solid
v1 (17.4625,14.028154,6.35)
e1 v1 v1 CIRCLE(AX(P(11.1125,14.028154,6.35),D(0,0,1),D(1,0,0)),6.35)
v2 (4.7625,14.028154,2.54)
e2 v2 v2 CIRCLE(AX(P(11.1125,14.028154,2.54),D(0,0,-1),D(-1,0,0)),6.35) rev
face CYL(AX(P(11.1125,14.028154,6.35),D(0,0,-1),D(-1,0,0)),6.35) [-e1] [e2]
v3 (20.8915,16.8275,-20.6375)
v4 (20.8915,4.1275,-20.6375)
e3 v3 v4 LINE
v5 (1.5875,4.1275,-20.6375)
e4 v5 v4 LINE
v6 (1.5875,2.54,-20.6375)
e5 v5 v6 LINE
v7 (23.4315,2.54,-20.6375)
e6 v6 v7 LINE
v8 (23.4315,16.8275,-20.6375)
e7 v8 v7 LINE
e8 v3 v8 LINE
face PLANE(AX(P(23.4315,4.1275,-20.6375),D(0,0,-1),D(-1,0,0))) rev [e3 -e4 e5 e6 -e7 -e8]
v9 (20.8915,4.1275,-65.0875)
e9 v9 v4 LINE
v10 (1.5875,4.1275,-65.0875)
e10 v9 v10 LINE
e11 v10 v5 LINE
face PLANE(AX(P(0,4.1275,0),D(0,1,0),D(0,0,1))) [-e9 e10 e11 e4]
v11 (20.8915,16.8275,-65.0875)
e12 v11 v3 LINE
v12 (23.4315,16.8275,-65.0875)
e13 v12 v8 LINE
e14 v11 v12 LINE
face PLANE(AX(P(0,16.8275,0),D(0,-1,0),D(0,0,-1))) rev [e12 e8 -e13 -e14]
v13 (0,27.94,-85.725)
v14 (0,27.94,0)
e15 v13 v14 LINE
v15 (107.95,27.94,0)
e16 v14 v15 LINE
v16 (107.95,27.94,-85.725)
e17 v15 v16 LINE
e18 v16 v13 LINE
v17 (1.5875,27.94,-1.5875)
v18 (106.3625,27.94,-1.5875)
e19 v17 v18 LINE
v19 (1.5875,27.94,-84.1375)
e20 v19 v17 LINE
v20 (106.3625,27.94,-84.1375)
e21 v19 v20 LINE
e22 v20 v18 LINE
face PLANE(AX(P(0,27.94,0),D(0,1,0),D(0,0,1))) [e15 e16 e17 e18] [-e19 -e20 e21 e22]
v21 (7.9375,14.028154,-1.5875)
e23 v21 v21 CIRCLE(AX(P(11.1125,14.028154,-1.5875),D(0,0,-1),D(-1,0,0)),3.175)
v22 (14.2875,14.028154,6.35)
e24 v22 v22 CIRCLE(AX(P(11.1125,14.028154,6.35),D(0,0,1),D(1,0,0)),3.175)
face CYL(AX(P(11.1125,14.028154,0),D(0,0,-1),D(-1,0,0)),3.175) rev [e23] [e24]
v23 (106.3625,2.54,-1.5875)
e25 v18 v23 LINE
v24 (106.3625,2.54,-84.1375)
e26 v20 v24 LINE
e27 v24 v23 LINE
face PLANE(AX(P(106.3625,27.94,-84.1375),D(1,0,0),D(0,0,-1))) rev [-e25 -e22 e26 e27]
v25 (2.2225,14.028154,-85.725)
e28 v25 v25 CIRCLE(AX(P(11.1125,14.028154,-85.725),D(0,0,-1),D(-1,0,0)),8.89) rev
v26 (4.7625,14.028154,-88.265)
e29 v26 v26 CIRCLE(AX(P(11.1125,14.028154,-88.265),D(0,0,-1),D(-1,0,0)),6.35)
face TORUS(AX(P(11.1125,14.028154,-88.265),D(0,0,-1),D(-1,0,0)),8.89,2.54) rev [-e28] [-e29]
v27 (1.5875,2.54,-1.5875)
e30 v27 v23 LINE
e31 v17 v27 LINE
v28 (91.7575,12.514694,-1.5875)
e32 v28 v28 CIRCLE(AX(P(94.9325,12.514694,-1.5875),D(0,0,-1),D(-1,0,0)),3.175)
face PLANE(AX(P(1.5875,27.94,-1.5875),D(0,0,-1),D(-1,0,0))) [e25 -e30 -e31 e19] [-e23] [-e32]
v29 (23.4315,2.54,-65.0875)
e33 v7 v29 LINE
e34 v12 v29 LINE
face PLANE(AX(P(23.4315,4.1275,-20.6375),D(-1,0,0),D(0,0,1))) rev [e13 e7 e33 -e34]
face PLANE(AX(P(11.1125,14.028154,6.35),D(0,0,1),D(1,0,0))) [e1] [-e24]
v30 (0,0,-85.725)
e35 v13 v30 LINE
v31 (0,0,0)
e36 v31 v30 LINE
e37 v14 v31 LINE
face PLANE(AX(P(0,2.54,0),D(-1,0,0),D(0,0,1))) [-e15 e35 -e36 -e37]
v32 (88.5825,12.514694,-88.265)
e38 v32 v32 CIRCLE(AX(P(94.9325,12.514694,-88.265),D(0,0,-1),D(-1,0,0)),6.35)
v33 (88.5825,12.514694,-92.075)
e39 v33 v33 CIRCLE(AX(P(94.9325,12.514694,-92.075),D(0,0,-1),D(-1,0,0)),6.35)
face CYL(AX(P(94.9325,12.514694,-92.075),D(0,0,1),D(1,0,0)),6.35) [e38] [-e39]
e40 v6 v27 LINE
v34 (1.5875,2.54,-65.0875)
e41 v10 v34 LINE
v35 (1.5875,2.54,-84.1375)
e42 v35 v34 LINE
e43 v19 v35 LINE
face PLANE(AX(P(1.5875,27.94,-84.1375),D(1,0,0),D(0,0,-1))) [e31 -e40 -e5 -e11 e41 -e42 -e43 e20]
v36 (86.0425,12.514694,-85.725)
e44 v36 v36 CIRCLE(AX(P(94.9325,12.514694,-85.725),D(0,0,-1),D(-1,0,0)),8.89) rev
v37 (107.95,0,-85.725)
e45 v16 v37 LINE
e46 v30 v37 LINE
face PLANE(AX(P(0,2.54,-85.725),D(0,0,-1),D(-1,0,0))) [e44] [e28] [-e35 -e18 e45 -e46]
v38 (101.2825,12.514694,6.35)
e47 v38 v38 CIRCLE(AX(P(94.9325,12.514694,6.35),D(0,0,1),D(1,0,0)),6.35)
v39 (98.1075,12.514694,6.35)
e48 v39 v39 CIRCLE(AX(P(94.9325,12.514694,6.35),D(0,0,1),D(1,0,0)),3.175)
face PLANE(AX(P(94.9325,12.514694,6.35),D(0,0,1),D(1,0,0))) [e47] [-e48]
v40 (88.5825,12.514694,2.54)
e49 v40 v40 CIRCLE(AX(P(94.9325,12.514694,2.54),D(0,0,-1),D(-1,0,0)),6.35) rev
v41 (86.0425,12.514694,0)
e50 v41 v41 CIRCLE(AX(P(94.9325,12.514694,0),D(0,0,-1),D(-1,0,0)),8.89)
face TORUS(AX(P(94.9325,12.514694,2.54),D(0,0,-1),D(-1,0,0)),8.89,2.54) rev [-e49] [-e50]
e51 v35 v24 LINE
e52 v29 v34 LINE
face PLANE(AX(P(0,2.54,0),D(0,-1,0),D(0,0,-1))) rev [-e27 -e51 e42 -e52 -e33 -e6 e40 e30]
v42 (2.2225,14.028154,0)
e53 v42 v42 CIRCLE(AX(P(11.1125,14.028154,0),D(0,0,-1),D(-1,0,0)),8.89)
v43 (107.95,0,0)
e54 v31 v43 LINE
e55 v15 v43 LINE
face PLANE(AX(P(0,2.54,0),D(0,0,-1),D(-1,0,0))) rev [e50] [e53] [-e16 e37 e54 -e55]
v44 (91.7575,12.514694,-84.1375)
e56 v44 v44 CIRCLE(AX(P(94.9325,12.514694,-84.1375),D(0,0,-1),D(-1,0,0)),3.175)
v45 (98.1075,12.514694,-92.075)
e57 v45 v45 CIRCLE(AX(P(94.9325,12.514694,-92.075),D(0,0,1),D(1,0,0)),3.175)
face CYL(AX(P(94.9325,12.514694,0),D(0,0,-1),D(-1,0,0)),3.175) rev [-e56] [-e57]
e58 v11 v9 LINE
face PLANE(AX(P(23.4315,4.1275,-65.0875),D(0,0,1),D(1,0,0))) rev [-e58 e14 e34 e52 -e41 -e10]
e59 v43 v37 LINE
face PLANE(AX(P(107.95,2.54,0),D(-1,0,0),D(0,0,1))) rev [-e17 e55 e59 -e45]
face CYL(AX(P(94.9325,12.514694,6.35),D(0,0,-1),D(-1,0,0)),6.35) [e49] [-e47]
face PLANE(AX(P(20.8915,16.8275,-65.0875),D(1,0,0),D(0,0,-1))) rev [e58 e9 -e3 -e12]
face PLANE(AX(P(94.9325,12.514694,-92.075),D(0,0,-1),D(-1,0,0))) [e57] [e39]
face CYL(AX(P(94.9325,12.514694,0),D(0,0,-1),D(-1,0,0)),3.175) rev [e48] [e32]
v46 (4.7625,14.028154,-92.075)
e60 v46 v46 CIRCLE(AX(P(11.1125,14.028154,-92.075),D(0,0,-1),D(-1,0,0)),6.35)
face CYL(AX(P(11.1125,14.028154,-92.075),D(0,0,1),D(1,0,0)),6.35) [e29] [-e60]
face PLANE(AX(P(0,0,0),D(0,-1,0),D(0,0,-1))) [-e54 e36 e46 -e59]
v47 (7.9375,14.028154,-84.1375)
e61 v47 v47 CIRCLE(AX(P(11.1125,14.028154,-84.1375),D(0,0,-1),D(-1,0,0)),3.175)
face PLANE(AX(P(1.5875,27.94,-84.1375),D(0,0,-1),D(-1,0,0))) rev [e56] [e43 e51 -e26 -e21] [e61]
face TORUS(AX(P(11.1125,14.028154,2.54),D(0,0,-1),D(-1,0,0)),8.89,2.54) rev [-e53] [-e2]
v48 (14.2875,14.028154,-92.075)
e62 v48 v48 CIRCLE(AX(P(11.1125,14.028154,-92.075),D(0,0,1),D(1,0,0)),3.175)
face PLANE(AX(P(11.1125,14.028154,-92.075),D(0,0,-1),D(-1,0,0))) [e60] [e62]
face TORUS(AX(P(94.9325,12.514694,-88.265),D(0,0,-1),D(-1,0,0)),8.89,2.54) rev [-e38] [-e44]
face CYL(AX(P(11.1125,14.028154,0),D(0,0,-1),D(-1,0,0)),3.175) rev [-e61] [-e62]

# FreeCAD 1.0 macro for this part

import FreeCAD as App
import Part
import Sketcher
Q = App.Units.Quantity


def edges_at(feature, points):
    """Names of the edges that pass closest to the given points."""
    edges = feature.Shape.Edges
    near = lambda p: min(range(len(edges)), key=lambda i: edges[i].distToShape(Part.Vertex(*p))[0])
    return sorted({f"Edge{near(p) + 1}" for p in points})

doc = App.newDocument("Part")
params = doc.addObject("Spreadsheet::Sheet", "Params")
for row, (alias, value) in enumerate([
    ("sketch1_width", "4.25 in"),
    ("sketch1_height", "3.375 in"),
    ("pad1_length", "0.1 in"),
    ("sketch2_width", "4.25 in"),
    ("sketch2_height", "3.25 in"),
    ("sketch2_width2", "4.125 in"),
    ("sketch2_height2", "3.375 in"),
    ("pad2_length", "1 in"),
    ("sketch3_diameter", "0.25 in"),
    ("sketch4_diameter", "0.25 in"),
    ("sketch5_width", "0.86 in"),
    ("sketch5_height", "1.75 in"),
    ("pad3_length", "0.0625 in"),
    ("sketch6_width", "0.1 in"),
    ("sketch6_height", "1.75 in"),
    ("pad4_length", "0.5 in"),
    ("sketch7_diameter", "0.5 in"),
    ("pad5_length", "0.25 in"),
    ("sketch8_diameter", "0.5 in"),
    ("pad6_length", "0.25 in"),
    ("fillet_radius", "0.1 in"),
    ("fillet2_radius", "0.1 in"),
    ("sketch9_diameter", "0.5 in"),
    ("pad7_length", "0.25 in"),
    ("sketch10_diameter", "0.5 in"),
    ("pad8_length", "0.25 in"),
    ("fillet3_radius", "0.1 in"),
    ("sketch11_diameter", "0.25 in"),
    ("sketch12_diameter", "0.25 in"),
], start=1):
    params.set(f"A{row}", alias)
    params.set(f"B{row}", "=" + value)
    params.setAlias(f"B{row}", alias)

body = doc.addObject("PartDesign::Body", "Body")

sketch1 = body.newObject("Sketcher::SketchObject", "Sketch")
sketch1.AttachmentSupport = (doc.getObject("XZ_Plane"), [""])
sketch1.MapMode = "FlatFace"
sketch1.addGeometry(Part.LineSegment(App.Vector(0, -86, 0), App.Vector(0, 0, 0)), False)
sketch1.addGeometry(Part.LineSegment(App.Vector(0, 0, 0), App.Vector(108, 0, 0)), False)
sketch1.addGeometry(Part.LineSegment(App.Vector(108, 0, 0), App.Vector(108, -86, 0)), False)
sketch1.addGeometry(Part.LineSegment(App.Vector(108, -86, 0), App.Vector(0, -86, 0)), False)
sketch1.addConstraint(Sketcher.Constraint("Coincident", 0, 2, 1, 1))
sketch1.addConstraint(Sketcher.Constraint("Coincident", 1, 2, 2, 1))
sketch1.addConstraint(Sketcher.Constraint("Coincident", 2, 2, 3, 1))
sketch1.addConstraint(Sketcher.Constraint("Coincident", 3, 2, 0, 1))
sketch1.addConstraint(Sketcher.Constraint("Vertical", 0))
sketch1.addConstraint(Sketcher.Constraint("Horizontal", 1))
sketch1.addConstraint(Sketcher.Constraint("Vertical", 2))
sketch1.addConstraint(Sketcher.Constraint("Horizontal", 3))
sketch1.addConstraint(Sketcher.Constraint("Coincident", 0, 2, -1, 1))
sketch1.addConstraint(Sketcher.Constraint("DistanceX", 1, 1, 1, 2, Q("4.25 in")))
sketch1.addConstraint(Sketcher.Constraint("DistanceY", 0, 1, 0, 2, Q("3.375 in")))
sketch1.setExpression("Constraints[9]", "Params.sketch1_width")
sketch1.setExpression("Constraints[10]", "Params.sketch1_height")
pad1 = body.newObject("PartDesign::Pad", "Pad")
pad1.Profile = sketch1
pad1.setExpression("Length", "Params.pad1_length")
pad1.Reversed = True

sketch2 = body.newObject("Sketcher::SketchObject", "Sketch001")
sketch2.AttachmentSupport = (doc.getObject("XZ_Plane"), [""])
sketch2.MapMode = "FlatFace"
sketch2.AttachmentOffset = App.Placement(App.Vector(0, 0, -0.1 * 25.4), App.Rotation())
sketch2.addGeometry(Part.LineSegment(App.Vector(0, -86, 0), App.Vector(0, 0, 0)), False)
sketch2.addGeometry(Part.LineSegment(App.Vector(0, 0, 0), App.Vector(108, 0, 0)), False)
sketch2.addGeometry(Part.LineSegment(App.Vector(108, 0, 0), App.Vector(108, -86, 0)), False)
sketch2.addGeometry(Part.LineSegment(App.Vector(108, -86, 0), App.Vector(0, -86, 0)), False)
sketch2.addGeometry(Part.LineSegment(App.Vector(106, -2, 0), App.Vector(2, -2, 0)), False)
sketch2.addGeometry(Part.LineSegment(App.Vector(2, -2, 0), App.Vector(2, -84, 0)), False)
sketch2.addGeometry(Part.LineSegment(App.Vector(2, -84, 0), App.Vector(106, -84, 0)), False)
sketch2.addGeometry(Part.LineSegment(App.Vector(106, -84, 0), App.Vector(106, -2, 0)), False)
sketch2.addConstraint(Sketcher.Constraint("Coincident", 0, 2, 1, 1))
sketch2.addConstraint(Sketcher.Constraint("Coincident", 1, 2, 2, 1))
sketch2.addConstraint(Sketcher.Constraint("Coincident", 2, 2, 3, 1))
sketch2.addConstraint(Sketcher.Constraint("Coincident", 3, 2, 0, 1))
sketch2.addConstraint(Sketcher.Constraint("Coincident", 4, 2, 5, 1))
sketch2.addConstraint(Sketcher.Constraint("Coincident", 5, 2, 6, 1))
sketch2.addConstraint(Sketcher.Constraint("Coincident", 6, 2, 7, 1))
sketch2.addConstraint(Sketcher.Constraint("Coincident", 7, 2, 4, 1))
sketch2.addConstraint(Sketcher.Constraint("Vertical", 0))
sketch2.addConstraint(Sketcher.Constraint("Horizontal", 1))
sketch2.addConstraint(Sketcher.Constraint("Vertical", 2))
sketch2.addConstraint(Sketcher.Constraint("Horizontal", 3))
sketch2.addConstraint(Sketcher.Constraint("Horizontal", 4))
sketch2.addConstraint(Sketcher.Constraint("Vertical", 5))
sketch2.addConstraint(Sketcher.Constraint("Horizontal", 6))
sketch2.addConstraint(Sketcher.Constraint("Vertical", 7))
sketch2.addConstraint(Sketcher.Constraint("Coincident", 0, 2, -1, 1))
sketch2.addConstraint(Sketcher.Constraint("DistanceX", 1, 1, 1, 2, Q("4.25 in")))
sketch2.addConstraint(Sketcher.Constraint("DistanceY", 5, 2, 5, 1, Q("3.25 in")))
sketch2.addConstraint(Sketcher.Constraint("DistanceX", 4, 2, 4, 1, Q("4.125 in")))
sketch2.addConstraint(Sketcher.Constraint("DistanceY", 0, 1, 0, 2, Q("3.375 in")))
sketch2.addConstraint(Sketcher.Constraint("DistanceX", -1, 1, 4, 2, Q("0.0625 in")))
sketch2.addConstraint(Sketcher.Constraint("DistanceY", 4, 2, -1, 1, Q("0.0625 in")))
sketch2.setExpression("Constraints[17]", "Params.sketch2_width")
sketch2.setExpression("Constraints[18]", "Params.sketch2_height")
sketch2.setExpression("Constraints[19]", "Params.sketch2_width2")
sketch2.setExpression("Constraints[20]", "Params.sketch2_height2")
pad2 = body.newObject("PartDesign::Pad", "Pad001")
pad2.Profile = sketch2
pad2.setExpression("Length", "Params.pad2_length")
pad2.Reversed = True

sketch3 = body.newObject("Sketcher::SketchObject", "Sketch002")
sketch3.AttachmentSupport = (doc.getObject("XY_Plane"), [""])
sketch3.MapMode = "FlatFace"
sketch3.AttachmentOffset = App.Placement(App.Vector(0, 0, -3.375 * 25.4), App.Rotation())
sketch3.addGeometry(Part.Circle(App.Vector(11.1, 14, 0), App.Vector(0, 0, 1), 3.2), False)
sketch3.addConstraint(Sketcher.Constraint("Diameter", 0, Q("0.25 in")))
sketch3.addConstraint(Sketcher.Constraint("DistanceX", -1, 1, 0, 3, Q("0.4375 in")))
sketch3.addConstraint(Sketcher.Constraint("DistanceY", -1, 1, 0, 3, 14.028154))
sketch3.setExpression("Constraints[0]", "Params.sketch3_diameter")
pocket1 = body.newObject("PartDesign::Pocket", "Pocket")
pocket1.Profile = sketch3
pocket1.Type = "ThroughAll"
pocket1.Midplane = True

sketch4 = body.newObject("Sketcher::SketchObject", "Sketch003")
sketch4.AttachmentSupport = (doc.getObject("XY_Plane"), [""])
sketch4.MapMode = "FlatFace"
sketch4.AttachmentOffset = App.Placement(App.Vector(0, 0, -3.375 * 25.4), App.Rotation())
sketch4.addGeometry(Part.Circle(App.Vector(94.9, 12.5, 0), App.Vector(0, 0, 1), 3.2), False)
sketch4.addConstraint(Sketcher.Constraint("Diameter", 0, Q("0.25 in")))
sketch4.addConstraint(Sketcher.Constraint("DistanceX", -1, 1, 0, 3, Q("3.7375 in")))
sketch4.addConstraint(Sketcher.Constraint("DistanceY", -1, 1, 0, 3, 12.514694))
sketch4.setExpression("Constraints[0]", "Params.sketch4_diameter")
pocket2 = body.newObject("PartDesign::Pocket", "Pocket001")
pocket2.Profile = sketch4
pocket2.Type = "ThroughAll"
pocket2.Midplane = True

sketch5 = body.newObject("Sketcher::SketchObject", "Sketch004")
sketch5.AttachmentSupport = (doc.getObject("XZ_Plane"), [""])
sketch5.MapMode = "FlatFace"
sketch5.AttachmentOffset = App.Placement(App.Vector(0, 0, -0.1 * 25.4), App.Rotation())
sketch5.addGeometry(Part.LineSegment(App.Vector(2, -65, 0), App.Vector(2, -21, 0)), False)
sketch5.addGeometry(Part.LineSegment(App.Vector(2, -21, 0), App.Vector(23, -21, 0)), False)
sketch5.addGeometry(Part.LineSegment(App.Vector(23, -21, 0), App.Vector(23, -65, 0)), False)
sketch5.addGeometry(Part.LineSegment(App.Vector(23, -65, 0), App.Vector(2, -65, 0)), False)
sketch5.addConstraint(Sketcher.Constraint("Coincident", 0, 2, 1, 1))
sketch5.addConstraint(Sketcher.Constraint("Coincident", 1, 2, 2, 1))
sketch5.addConstraint(Sketcher.Constraint("Coincident", 2, 2, 3, 1))
sketch5.addConstraint(Sketcher.Constraint("Coincident", 3, 2, 0, 1))
sketch5.addConstraint(Sketcher.Constraint("Vertical", 0))
sketch5.addConstraint(Sketcher.Constraint("Horizontal", 1))
sketch5.addConstraint(Sketcher.Constraint("Vertical", 2))
sketch5.addConstraint(Sketcher.Constraint("Horizontal", 3))
sketch5.addConstraint(Sketcher.Constraint("DistanceX", 1, 1, 1, 2, Q("0.86 in")))
sketch5.addConstraint(Sketcher.Constraint("DistanceY", 0, 1, 0, 2, Q("1.75 in")))
sketch5.addConstraint(Sketcher.Constraint("DistanceX", -1, 1, 0, 2, Q("0.0625 in")))
sketch5.addConstraint(Sketcher.Constraint("DistanceY", 0, 2, -1, 1, Q("0.8125 in")))
sketch5.setExpression("Constraints[8]", "Params.sketch5_width")
sketch5.setExpression("Constraints[9]", "Params.sketch5_height")
pad3 = body.newObject("PartDesign::Pad", "Pad002")
pad3.Profile = sketch5
pad3.setExpression("Length", "Params.pad3_length")
pad3.Reversed = True

sketch6 = body.newObject("Sketcher::SketchObject", "Sketch005")
sketch6.AttachmentSupport = (doc.getObject("XZ_Plane"), [""])
sketch6.MapMode = "FlatFace"
sketch6.AttachmentOffset = App.Placement(App.Vector(0, 0, -0.1625 * 25.4), App.Rotation())
sketch6.addGeometry(Part.LineSegment(App.Vector(20.9, -65.1, 0), App.Vector(20.9, -20.6, 0)), False)
sketch6.addGeometry(Part.LineSegment(App.Vector(20.9, -20.6, 0), App.Vector(23.4, -20.6, 0)), False)
sketch6.addGeometry(Part.LineSegment(App.Vector(23.4, -20.6, 0), App.Vector(23.4, -65.1, 0)), False)
sketch6.addGeometry(Part.LineSegment(App.Vector(23.4, -65.1, 0), App.Vector(20.9, -65.1, 0)), False)
sketch6.addConstraint(Sketcher.Constraint("Coincident", 0, 2, 1, 1))
sketch6.addConstraint(Sketcher.Constraint("Coincident", 1, 2, 2, 1))
sketch6.addConstraint(Sketcher.Constraint("Coincident", 2, 2, 3, 1))
sketch6.addConstraint(Sketcher.Constraint("Coincident", 3, 2, 0, 1))
sketch6.addConstraint(Sketcher.Constraint("Vertical", 0))
sketch6.addConstraint(Sketcher.Constraint("Horizontal", 1))
sketch6.addConstraint(Sketcher.Constraint("Vertical", 2))
sketch6.addConstraint(Sketcher.Constraint("Horizontal", 3))
sketch6.addConstraint(Sketcher.Constraint("DistanceX", 1, 1, 1, 2, Q("0.1 in")))
sketch6.addConstraint(Sketcher.Constraint("DistanceY", 0, 1, 0, 2, Q("1.75 in")))
sketch6.addConstraint(Sketcher.Constraint("DistanceY", 0, 2, -1, 1, Q("0.8125 in")))
sketch6.addConstraint(Sketcher.Constraint("DistanceX", -1, 1, 0, 2, Q("0.8225 in")))
sketch6.setExpression("Constraints[8]", "Params.sketch6_width")
sketch6.setExpression("Constraints[9]", "Params.sketch6_height")
pad4 = body.newObject("PartDesign::Pad", "Pad003")
pad4.Profile = sketch6
pad4.setExpression("Length", "Params.pad4_length")
pad4.Reversed = True

sketch7 = body.newObject("Sketcher::SketchObject", "Sketch006")
sketch7.AttachmentSupport = (doc.getObject("XY_Plane"), [""])
sketch7.MapMode = "FlatFace"
sketch7.addGeometry(Part.Circle(App.Vector(11, 14, 0), App.Vector(0, 0, 1), 6), False)
sketch7.addConstraint(Sketcher.Constraint("Diameter", 0, Q("0.5 in")))
sketch7.addConstraint(Sketcher.Constraint("DistanceX", -1, 1, 0, 3, Q("0.4375 in")))
sketch7.addConstraint(Sketcher.Constraint("DistanceY", -1, 1, 0, 3, 14.028154))
sketch7.setExpression("Constraints[0]", "Params.sketch7_diameter")
pad5 = body.newObject("PartDesign::Pad", "Pad004")
pad5.Profile = sketch7
pad5.setExpression("Length", "Params.pad5_length")

sketch8 = body.newObject("Sketcher::SketchObject", "Sketch007")
sketch8.AttachmentSupport = (doc.getObject("XY_Plane"), [""])
sketch8.MapMode = "FlatFace"
sketch8.addGeometry(Part.Circle(App.Vector(95, 13, 0), App.Vector(0, 0, 1), 6), False)
sketch8.addConstraint(Sketcher.Constraint("Diameter", 0, Q("0.5 in")))
sketch8.addConstraint(Sketcher.Constraint("DistanceX", -1, 1, 0, 3, Q("3.7375 in")))
sketch8.addConstraint(Sketcher.Constraint("DistanceY", -1, 1, 0, 3, 12.514694))
sketch8.setExpression("Constraints[0]", "Params.sketch8_diameter")
pad6 = body.newObject("PartDesign::Pad", "Pad005")
pad6.Profile = sketch8
pad6.setExpression("Length", "Params.pad6_length")
doc.recompute()

fillet = body.newObject("PartDesign::Fillet", "Fillet")
fillet.Base = (pad6, edges_at(pad6, [(17.462, 14.028, 0)]))
fillet.setExpression("Radius", "Params.fillet_radius")
doc.recompute()

fillet2 = body.newObject("PartDesign::Fillet", "Fillet001")
fillet2.Base = (fillet, edges_at(fillet, [(101.282, 12.515, 0)]))
fillet2.setExpression("Radius", "Params.fillet2_radius")

sketch9 = body.newObject("Sketcher::SketchObject", "Sketch008")
sketch9.AttachmentSupport = (doc.getObject("XY_Plane"), [""])
sketch9.MapMode = "FlatFace"
sketch9.AttachmentOffset = App.Placement(App.Vector(0, 0, -3.375 * 25.4), App.Rotation())
sketch9.addGeometry(Part.Circle(App.Vector(95, 13, 0), App.Vector(0, 0, 1), 6), False)
sketch9.addConstraint(Sketcher.Constraint("Diameter", 0, Q("0.5 in")))
sketch9.addConstraint(Sketcher.Constraint("DistanceX", -1, 1, 0, 3, Q("3.7375 in")))
sketch9.addConstraint(Sketcher.Constraint("DistanceY", -1, 1, 0, 3, 12.514694))
sketch9.setExpression("Constraints[0]", "Params.sketch9_diameter")
pad7 = body.newObject("PartDesign::Pad", "Pad006")
pad7.Profile = sketch9
pad7.setExpression("Length", "Params.pad7_length")
pad7.Reversed = True

sketch10 = body.newObject("Sketcher::SketchObject", "Sketch009")
sketch10.AttachmentSupport = (doc.getObject("XY_Plane"), [""])
sketch10.MapMode = "FlatFace"
sketch10.AttachmentOffset = App.Placement(App.Vector(0, 0, -3.375 * 25.4), App.Rotation())
sketch10.addGeometry(Part.Circle(App.Vector(11, 14, 0), App.Vector(0, 0, 1), 6), False)
sketch10.addConstraint(Sketcher.Constraint("Diameter", 0, Q("0.5 in")))
sketch10.addConstraint(Sketcher.Constraint("DistanceX", -1, 1, 0, 3, Q("0.4375 in")))
sketch10.addConstraint(Sketcher.Constraint("DistanceY", -1, 1, 0, 3, 14.028154))
sketch10.setExpression("Constraints[0]", "Params.sketch10_diameter")
pad8 = body.newObject("PartDesign::Pad", "Pad007")
pad8.Profile = sketch10
pad8.setExpression("Length", "Params.pad8_length")
pad8.Reversed = True
doc.recompute()

fillet3 = body.newObject("PartDesign::Fillet", "Fillet002")
fillet3.Base = (pad8, edges_at(pad8, [(101.282, 12.515, -85.725), (17.462, 14.028, -85.725)]))
fillet3.setExpression("Radius", "Params.fillet3_radius")

sketch11 = body.newObject("Sketcher::SketchObject", "Sketch010")
sketch11.AttachmentSupport = (doc.getObject("XY_Plane"), [""])
sketch11.MapMode = "FlatFace"
sketch11.AttachmentOffset = App.Placement(App.Vector(0, 0, -3.375 * 25.4), App.Rotation())
sketch11.addGeometry(Part.Circle(App.Vector(94.9, 12.5, 0), App.Vector(0, 0, 1), 3.2), False)
sketch11.addConstraint(Sketcher.Constraint("Diameter", 0, Q("0.25 in")))
sketch11.addConstraint(Sketcher.Constraint("DistanceX", -1, 1, 0, 3, Q("3.7375 in")))
sketch11.addConstraint(Sketcher.Constraint("DistanceY", -1, 1, 0, 3, 12.514694))
sketch11.setExpression("Constraints[0]", "Params.sketch11_diameter")
pocket3 = body.newObject("PartDesign::Pocket", "Pocket002")
pocket3.Profile = sketch11
pocket3.Type = "ThroughAll"
pocket3.Midplane = True

sketch12 = body.newObject("Sketcher::SketchObject", "Sketch011")
sketch12.AttachmentSupport = (doc.getObject("XY_Plane"), [""])
sketch12.MapMode = "FlatFace"
sketch12.AttachmentOffset = App.Placement(App.Vector(0, 0, -3.375 * 25.4), App.Rotation())
sketch12.addGeometry(Part.Circle(App.Vector(11.1, 14, 0), App.Vector(0, 0, 1), 3.2), False)
sketch12.addConstraint(Sketcher.Constraint("Diameter", 0, Q("0.25 in")))
sketch12.addConstraint(Sketcher.Constraint("DistanceX", -1, 1, 0, 3, Q("0.4375 in")))
sketch12.addConstraint(Sketcher.Constraint("DistanceY", -1, 1, 0, 3, 14.028154))
sketch12.setExpression("Constraints[0]", "Params.sketch12_diameter")
pocket4 = body.newObject("PartDesign::Pocket", "Pocket003")
pocket4.Profile = sketch12
pocket4.Type = "ThroughAll"
pocket4.Midplane = True

doc.recompute()
